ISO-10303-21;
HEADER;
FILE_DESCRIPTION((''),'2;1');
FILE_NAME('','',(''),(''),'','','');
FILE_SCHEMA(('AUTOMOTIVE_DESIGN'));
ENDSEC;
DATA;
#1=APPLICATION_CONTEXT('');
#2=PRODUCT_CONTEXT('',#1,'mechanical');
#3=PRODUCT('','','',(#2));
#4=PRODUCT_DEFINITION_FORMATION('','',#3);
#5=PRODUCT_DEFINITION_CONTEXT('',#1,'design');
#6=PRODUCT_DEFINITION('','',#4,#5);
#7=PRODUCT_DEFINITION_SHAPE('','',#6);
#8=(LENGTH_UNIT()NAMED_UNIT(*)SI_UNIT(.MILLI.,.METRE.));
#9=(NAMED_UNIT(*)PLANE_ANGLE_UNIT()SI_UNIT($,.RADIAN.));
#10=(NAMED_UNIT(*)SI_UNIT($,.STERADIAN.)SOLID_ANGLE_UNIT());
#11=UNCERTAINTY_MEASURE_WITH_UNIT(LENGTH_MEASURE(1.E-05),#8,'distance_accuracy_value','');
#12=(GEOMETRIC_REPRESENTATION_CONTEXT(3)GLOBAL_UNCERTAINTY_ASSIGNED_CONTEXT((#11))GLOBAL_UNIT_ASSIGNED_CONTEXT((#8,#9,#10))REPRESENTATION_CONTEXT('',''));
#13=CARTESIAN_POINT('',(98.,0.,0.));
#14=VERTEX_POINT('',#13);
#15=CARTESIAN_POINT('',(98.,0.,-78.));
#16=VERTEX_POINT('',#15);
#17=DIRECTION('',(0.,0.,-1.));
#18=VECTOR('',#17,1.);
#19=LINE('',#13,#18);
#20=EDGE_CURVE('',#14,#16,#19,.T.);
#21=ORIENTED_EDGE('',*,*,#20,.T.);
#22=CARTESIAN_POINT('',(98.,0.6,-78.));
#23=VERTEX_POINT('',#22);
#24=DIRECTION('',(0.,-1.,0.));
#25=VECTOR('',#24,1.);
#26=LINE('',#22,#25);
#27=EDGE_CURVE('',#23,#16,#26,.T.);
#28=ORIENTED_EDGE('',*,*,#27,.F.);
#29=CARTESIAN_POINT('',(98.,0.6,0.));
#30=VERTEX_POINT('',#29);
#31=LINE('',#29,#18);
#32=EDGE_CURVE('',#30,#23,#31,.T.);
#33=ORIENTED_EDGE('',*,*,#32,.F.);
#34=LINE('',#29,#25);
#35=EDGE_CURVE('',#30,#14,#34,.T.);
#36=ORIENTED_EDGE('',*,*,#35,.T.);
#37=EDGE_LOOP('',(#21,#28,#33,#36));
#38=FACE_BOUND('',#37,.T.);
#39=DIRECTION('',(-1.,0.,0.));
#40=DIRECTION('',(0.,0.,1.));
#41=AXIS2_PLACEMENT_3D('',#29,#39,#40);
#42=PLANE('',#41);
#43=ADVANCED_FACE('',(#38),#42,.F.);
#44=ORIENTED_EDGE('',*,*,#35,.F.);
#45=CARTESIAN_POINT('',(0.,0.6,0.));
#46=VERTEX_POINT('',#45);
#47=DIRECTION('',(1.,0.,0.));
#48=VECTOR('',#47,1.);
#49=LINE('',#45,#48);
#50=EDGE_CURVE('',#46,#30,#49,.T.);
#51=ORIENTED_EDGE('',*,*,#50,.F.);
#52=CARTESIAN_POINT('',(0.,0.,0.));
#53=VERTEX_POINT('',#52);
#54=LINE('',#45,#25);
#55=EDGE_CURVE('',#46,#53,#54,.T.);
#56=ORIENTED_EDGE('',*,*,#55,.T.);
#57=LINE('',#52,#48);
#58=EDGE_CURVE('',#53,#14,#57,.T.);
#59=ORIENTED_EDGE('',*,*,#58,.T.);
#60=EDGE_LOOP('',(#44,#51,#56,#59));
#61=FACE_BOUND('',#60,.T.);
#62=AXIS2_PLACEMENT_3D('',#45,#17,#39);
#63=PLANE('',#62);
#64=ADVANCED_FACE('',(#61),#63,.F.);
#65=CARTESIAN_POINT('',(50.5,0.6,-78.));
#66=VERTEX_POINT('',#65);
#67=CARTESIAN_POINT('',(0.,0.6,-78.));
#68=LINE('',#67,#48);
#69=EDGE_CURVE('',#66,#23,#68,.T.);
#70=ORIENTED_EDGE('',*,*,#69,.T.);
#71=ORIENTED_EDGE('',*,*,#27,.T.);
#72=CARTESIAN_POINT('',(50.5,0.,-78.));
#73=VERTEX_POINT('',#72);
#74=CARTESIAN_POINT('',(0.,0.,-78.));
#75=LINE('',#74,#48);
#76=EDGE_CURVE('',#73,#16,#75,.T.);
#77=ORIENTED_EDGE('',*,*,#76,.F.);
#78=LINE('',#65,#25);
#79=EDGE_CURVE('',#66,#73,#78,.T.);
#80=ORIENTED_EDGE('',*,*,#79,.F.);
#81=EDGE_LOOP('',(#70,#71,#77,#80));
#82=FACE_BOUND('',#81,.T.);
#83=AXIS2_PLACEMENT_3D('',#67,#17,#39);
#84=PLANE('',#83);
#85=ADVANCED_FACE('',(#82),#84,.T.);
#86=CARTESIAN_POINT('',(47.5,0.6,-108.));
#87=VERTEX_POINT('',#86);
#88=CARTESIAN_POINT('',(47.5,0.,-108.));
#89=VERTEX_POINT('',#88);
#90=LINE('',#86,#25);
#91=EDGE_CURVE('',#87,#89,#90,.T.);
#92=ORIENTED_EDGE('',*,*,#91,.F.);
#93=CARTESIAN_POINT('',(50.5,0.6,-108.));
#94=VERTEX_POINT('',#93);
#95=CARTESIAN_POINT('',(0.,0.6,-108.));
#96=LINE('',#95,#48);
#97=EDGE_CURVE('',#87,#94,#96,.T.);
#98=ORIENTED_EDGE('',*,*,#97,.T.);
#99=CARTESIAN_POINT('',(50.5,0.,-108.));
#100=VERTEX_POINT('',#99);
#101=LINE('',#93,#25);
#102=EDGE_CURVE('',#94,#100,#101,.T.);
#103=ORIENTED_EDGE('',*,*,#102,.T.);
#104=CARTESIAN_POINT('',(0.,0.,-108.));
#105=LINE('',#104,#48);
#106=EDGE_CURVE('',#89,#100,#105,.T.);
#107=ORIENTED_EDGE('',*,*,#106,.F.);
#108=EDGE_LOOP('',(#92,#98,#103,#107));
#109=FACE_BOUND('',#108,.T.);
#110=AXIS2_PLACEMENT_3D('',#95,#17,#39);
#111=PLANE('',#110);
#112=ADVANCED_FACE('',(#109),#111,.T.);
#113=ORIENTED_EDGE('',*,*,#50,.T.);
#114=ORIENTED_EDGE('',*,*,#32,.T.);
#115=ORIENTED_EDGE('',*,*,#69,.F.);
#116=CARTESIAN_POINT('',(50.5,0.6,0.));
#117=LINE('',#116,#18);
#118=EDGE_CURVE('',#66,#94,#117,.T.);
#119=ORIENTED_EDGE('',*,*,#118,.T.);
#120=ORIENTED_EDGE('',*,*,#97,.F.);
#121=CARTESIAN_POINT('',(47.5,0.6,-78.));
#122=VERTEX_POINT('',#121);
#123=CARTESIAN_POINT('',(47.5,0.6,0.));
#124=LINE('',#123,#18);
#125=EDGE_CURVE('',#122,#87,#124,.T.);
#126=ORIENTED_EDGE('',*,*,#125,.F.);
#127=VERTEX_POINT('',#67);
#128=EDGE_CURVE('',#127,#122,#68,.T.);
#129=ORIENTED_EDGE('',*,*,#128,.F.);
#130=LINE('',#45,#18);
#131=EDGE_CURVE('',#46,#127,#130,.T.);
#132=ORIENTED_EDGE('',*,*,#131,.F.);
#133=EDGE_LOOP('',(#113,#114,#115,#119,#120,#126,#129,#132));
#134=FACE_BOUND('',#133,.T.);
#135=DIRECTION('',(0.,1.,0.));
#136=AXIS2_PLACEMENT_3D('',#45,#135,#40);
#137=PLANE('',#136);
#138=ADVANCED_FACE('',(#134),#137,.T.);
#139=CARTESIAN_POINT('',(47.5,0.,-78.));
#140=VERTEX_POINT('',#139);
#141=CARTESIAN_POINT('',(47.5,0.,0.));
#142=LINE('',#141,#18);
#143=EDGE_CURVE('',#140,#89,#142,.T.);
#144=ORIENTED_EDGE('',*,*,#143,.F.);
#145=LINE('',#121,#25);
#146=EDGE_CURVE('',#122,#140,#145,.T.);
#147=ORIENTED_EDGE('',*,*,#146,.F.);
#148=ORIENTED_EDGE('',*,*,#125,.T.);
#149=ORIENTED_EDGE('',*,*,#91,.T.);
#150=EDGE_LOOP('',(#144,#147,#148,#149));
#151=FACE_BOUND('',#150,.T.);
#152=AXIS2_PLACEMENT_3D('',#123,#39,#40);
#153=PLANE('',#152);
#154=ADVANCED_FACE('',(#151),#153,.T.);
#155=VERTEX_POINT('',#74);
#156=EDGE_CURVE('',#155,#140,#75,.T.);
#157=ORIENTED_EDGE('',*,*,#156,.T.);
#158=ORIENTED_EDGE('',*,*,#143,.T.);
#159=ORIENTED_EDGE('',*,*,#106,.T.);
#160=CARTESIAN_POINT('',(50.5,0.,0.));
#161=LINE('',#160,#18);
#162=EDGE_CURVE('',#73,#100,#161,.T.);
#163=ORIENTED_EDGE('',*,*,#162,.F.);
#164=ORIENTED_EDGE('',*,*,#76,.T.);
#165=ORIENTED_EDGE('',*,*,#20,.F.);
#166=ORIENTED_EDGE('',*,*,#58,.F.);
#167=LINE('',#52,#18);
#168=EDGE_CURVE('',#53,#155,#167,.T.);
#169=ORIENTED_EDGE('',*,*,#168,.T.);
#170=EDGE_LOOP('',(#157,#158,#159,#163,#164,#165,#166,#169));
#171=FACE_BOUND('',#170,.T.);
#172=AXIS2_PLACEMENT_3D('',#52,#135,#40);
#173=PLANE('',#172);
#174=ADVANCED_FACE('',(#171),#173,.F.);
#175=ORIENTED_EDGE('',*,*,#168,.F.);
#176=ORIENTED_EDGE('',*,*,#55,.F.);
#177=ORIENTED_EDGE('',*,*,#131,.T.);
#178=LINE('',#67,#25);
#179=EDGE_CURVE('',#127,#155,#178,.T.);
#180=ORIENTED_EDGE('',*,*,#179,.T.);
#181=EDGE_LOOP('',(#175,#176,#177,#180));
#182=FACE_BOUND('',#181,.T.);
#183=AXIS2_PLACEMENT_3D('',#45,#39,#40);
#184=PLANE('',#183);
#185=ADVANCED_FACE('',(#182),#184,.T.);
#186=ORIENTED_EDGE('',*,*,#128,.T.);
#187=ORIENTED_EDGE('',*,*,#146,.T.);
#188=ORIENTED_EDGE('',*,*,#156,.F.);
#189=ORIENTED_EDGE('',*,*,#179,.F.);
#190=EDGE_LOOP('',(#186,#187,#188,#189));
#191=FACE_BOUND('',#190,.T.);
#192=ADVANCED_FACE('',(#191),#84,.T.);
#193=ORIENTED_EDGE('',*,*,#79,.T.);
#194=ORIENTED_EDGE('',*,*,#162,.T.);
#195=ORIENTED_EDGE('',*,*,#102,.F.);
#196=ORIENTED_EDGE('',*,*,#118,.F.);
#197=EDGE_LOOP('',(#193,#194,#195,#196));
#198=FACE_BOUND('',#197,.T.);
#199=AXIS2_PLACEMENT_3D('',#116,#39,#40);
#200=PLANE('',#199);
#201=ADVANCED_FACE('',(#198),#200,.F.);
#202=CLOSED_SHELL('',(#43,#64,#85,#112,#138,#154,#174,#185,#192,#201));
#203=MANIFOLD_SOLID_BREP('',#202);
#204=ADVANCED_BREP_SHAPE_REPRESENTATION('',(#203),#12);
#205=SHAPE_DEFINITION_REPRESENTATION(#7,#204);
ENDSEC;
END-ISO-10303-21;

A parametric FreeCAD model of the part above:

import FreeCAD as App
import Part
import Sketcher


def add_polygon(sketch, points):
    """Adds a closed chain of lines whose ends are joined by coincident constraints."""
    first, n = sketch.GeometryCount, len(points)
    for a, b in zip(points, points[1:] + points[:1]):
        sketch.addGeometry(Part.LineSegment(App.Vector(*a, 0), App.Vector(*b, 0)), False)
    for i in range(n):
        sketch.addConstraint(Sketcher.Constraint("Coincident", first + i, 2, first + (i + 1) % n, 1))

doc = App.newDocument("Part")
body = doc.addObject("PartDesign::Body", "Body")

sketch1 = body.newObject("Sketcher::SketchObject", "Sketch")
sketch1.AttachmentSupport = (doc.getObject("XZ_Plane"), [""])
sketch1.MapMode = "FlatFace"
add_polygon(sketch1, [(0, -78), (0, 0), (98, 0), (98, -78), (50.5, -78), (50.5, -108), (47.5, -108), (47.5, -78)])
sketch1.addConstraint([
    Sketcher.Constraint("Vertical", 0),
    Sketcher.Constraint("Horizontal", 1),
    Sketcher.Constraint("Vertical", 2),
    Sketcher.Constraint("Horizontal", 3),
    Sketcher.Constraint("Vertical", 4),
    Sketcher.Constraint("Horizontal", 5),
    Sketcher.Constraint("Vertical", 6),
    Sketcher.Constraint("Horizontal", 7),
    Sketcher.Constraint("Coincident", 0, 2, -1, 1),
    Sketcher.Constraint("Horizontal", 3, 2, 6, 2),
    Sketcher.Constraint("Equal", 3, 7),
    Sketcher.Constraint("DistanceX", 1, 1, 1, 2, 98.0),
    Sketcher.Constraint("DistanceX", 5, 2, 5, 1, 3.0),
    Sketcher.Constraint("DistanceY", 0, 1, 0, 2, 78.0),
    Sketcher.Constraint("DistanceY", 4, 2, 4, 1, 30.0),
])
pad1 = body.newObject("PartDesign::Pad", "Pad")
pad1.Profile = sketch1
pad1.Length = 0.6
pad1.Reversed = True

doc.recompute()
